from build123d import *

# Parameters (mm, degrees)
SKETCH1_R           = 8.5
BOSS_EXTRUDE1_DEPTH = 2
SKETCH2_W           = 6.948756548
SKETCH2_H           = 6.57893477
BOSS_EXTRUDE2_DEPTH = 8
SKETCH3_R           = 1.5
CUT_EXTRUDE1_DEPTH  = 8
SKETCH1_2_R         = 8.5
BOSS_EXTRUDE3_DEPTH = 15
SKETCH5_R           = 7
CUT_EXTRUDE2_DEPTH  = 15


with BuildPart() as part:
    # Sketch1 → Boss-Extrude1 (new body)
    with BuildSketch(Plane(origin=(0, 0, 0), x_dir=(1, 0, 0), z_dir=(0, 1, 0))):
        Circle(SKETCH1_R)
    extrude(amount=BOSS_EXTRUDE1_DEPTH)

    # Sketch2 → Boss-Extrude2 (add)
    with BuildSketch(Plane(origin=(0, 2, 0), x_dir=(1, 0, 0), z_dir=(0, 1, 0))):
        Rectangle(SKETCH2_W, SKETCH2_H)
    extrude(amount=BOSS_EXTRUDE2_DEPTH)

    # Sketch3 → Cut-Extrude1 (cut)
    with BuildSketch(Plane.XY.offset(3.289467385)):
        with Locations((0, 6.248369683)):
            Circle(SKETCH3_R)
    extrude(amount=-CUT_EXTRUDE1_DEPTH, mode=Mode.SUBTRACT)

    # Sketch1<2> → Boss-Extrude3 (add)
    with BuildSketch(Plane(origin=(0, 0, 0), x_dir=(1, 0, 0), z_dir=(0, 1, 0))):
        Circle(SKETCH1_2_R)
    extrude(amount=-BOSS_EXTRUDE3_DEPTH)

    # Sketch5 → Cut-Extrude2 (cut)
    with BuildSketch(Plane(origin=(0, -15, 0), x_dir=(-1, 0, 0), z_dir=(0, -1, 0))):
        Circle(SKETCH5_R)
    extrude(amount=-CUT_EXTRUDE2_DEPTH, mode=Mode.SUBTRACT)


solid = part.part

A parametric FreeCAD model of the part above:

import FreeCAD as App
import Part
import Sketcher
from FreeCAD import Vector


def add_polygon(sketch, points):
    """Adds a closed chain of lines whose ends are joined by coincident constraints."""
    first, n = sketch.GeometryCount, len(points)
    for a, b in zip(points, points[1:] + points[:1]):
        sketch.addGeometry(Part.LineSegment(App.Vector(*a, 0), App.Vector(*b, 0)), False)
    for i in range(n):
        sketch.addConstraint(Sketcher.Constraint("Coincident", first + i, 2, first + (i + 1) % n, 1))

doc = App.newDocument("Part")
body = doc.addObject("PartDesign::Body", "Body")

sketch1 = body.newObject("Sketcher::SketchObject", "Sketch")
sketch1.AttachmentSupport = (doc.getObject("XZ_Plane"), [""])
sketch1.MapMode = "FlatFace"
sketch1.addGeometry(Part.Circle(Vector(0, 0, 0), Vector(0, 0, 1), 8), False)
sketch1.addConstraint([
    Sketcher.Constraint("Coincident", 0, 3, -1, 1),
    Sketcher.Constraint("Diameter", 0, 17.0),
])
pad1 = body.newObject("PartDesign::Pad", "Pad")
pad1.Profile = sketch1
pad1.Length = 2
pad1.Reversed = True

sketch2 = body.newObject("Sketcher::SketchObject", "Sketch001")
sketch2.AttachmentSupport = (doc.getObject("XZ_Plane"), [""])
sketch2.MapMode = "FlatFace"
sketch2.AttachmentOffset = App.Placement(Vector(0, 0, -2), App.Rotation())
add_polygon(sketch2, [(-3, -3), (-3, 3), (3, 3), (3, -3)])
sketch2.addConstraint([
    Sketcher.Constraint("Vertical", 0),
    Sketcher.Constraint("Horizontal", 1),
    Sketcher.Constraint("Vertical", 2),
    Sketcher.Constraint("Horizontal", 3),
    Sketcher.Constraint("Symmetric", 0, 2, 2, 2, -1, 1),
    Sketcher.Constraint("DistanceX", 1, 1, 1, 2, 6.948757),
    Sketcher.Constraint("DistanceY", 0, 1, 0, 2, 6.578935),
])
pad2 = body.newObject("PartDesign::Pad", "Pad001")
pad2.Profile = sketch2
pad2.Length = 8
pad2.Reversed = True

sketch3 = body.newObject("Sketcher::SketchObject", "Sketch002")
sketch3.AttachmentSupport = (doc.getObject("XY_Plane"), [""])
sketch3.MapMode = "FlatFace"
sketch3.AttachmentOffset = App.Placement(Vector(0, 0, 3.289467), App.Rotation())
sketch3.addGeometry(Part.Circle(Vector(0, 6.2, 0), Vector(0, 0, 1), 1.5), False)
sketch3.addConstraint([
    Sketcher.Constraint("PointOnObject", 0, 3, -2),
    Sketcher.Constraint("Diameter", 0, 3.0),
    Sketcher.Constraint("DistanceY", -1, 1, 0, 3, 6.24837),
])
pocket1 = body.newObject("PartDesign::Pocket", "Pocket")
pocket1.Profile = sketch3
pocket1.Length = 8

sketch4 = body.newObject("Sketcher::SketchObject", "Sketch003")
sketch4.AttachmentSupport = (doc.getObject("XZ_Plane"), [""])
sketch4.MapMode = "FlatFace"
sketch4.addGeometry(Part.Circle(Vector(0, 0, 0), Vector(0, 0, 1), 8), False)
sketch4.addConstraint([
    Sketcher.Constraint("Coincident", 0, 3, -1, 1),
    Sketcher.Constraint("Diameter", 0, 17.0),
])
pad3 = body.newObject("PartDesign::Pad", "Pad002")
pad3.Profile = sketch4
pad3.Length = 15

sketch5 = body.newObject("Sketcher::SketchObject", "Sketch004")
sketch5.AttachmentSupport = (doc.getObject("XZ_Plane"), [""])
sketch5.MapMode = "FlatFace"
sketch5.AttachmentOffset = App.Placement(Vector(0, 0, 15), App.Rotation())
sketch5.addGeometry(Part.Circle(Vector(0, 0, 0), Vector(0, 0, 1), 7), False)
sketch5.addConstraint([
    Sketcher.Constraint("Coincident", 0, 3, -1, 1),
    Sketcher.Constraint("Diameter", 0, 14.0),
])
pocket2 = body.newObject("PartDesign::Pocket", "Pocket001")
pocket2.Profile = sketch5
pocket2.Length = 15

doc.recompute()
